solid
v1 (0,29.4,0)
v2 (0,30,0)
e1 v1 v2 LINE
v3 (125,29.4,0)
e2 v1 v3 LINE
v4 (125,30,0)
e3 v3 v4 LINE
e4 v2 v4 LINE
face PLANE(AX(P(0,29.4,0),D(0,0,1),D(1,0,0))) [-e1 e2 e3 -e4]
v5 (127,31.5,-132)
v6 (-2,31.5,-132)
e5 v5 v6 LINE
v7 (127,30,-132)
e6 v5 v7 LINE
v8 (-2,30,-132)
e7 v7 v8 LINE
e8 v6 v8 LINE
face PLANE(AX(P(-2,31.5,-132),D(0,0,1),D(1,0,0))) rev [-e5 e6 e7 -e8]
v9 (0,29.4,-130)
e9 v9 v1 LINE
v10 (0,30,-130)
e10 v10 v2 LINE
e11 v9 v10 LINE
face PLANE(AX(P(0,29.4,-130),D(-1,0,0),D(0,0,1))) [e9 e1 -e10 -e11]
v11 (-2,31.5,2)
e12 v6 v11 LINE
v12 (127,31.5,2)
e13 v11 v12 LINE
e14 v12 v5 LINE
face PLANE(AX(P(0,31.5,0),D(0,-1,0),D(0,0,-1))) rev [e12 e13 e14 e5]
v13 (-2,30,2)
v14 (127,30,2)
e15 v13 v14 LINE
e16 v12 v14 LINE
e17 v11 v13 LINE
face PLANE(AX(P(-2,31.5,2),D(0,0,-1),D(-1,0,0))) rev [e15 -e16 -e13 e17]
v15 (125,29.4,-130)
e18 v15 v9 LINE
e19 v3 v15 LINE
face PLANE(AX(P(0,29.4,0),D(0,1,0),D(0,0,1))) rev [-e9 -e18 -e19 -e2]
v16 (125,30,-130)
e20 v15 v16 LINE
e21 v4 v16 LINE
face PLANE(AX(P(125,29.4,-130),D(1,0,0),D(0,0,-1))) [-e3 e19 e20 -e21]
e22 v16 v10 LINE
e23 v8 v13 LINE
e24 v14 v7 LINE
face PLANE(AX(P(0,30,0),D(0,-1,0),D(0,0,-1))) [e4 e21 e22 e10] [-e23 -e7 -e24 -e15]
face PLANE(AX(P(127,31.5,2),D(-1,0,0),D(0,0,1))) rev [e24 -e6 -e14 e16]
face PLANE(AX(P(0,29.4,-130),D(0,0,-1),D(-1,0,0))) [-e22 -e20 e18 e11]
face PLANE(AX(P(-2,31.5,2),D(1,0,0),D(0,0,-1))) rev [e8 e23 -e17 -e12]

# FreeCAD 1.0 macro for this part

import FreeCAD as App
import Part
import Sketcher

V = App.Vector

doc = App.newDocument("Part")
body = doc.addObject("PartDesign::Body", "Body")

sketch1 = body.newObject("Sketcher::SketchObject", "Sketch")
sketch1.AttachmentSupport = (doc.getObject("XZ_Plane"), [""])
sketch1.MapMode = "FlatFace"
sketch1.AttachmentOffset = App.Placement(V(0, 0, -30), App.Rotation())
sketch1.addGeometry([
    Part.LineSegment(V(0, -130, 0), V(0, 0, 0)),
    Part.LineSegment(V(0, 0, 0), V(125, 0, 0)),
    Part.LineSegment(V(125, 0, 0), V(125, -130, 0)),
    Part.LineSegment(V(125, -130, 0), V(0, -130, 0)),
], False)
sketch1.addConstraint([
    Sketcher.Constraint("Coincident", 0, 2, 1, 1),
    Sketcher.Constraint("Coincident", 1, 2, 2, 1),
    Sketcher.Constraint("Coincident", 2, 2, 3, 1),
    Sketcher.Constraint("Coincident", 3, 2, 0, 1),
    Sketcher.Constraint("Vertical", 0),
    Sketcher.Constraint("Horizontal", 1),
    Sketcher.Constraint("Vertical", 2),
    Sketcher.Constraint("Horizontal", 3),
    Sketcher.Constraint("Coincident", 0, 2, -1, 1),
    Sketcher.Constraint("DistanceX", 1, 1, 1, 2, 125.0),
    Sketcher.Constraint("DistanceY", 0, 1, 0, 2, 130.0),
])
pad1 = body.newObject("PartDesign::Pad", "Pad")
pad1.Profile = sketch1
pad1.Length = 0.6

sketch2 = body.newObject("Sketcher::SketchObject", "Sketch001")
sketch2.AttachmentSupport = (doc.getObject("XZ_Plane"), [""])
sketch2.MapMode = "FlatFace"
sketch2.AttachmentOffset = App.Placement(V(0, 0, -30), App.Rotation())
sketch2.addGeometry([
    Part.LineSegment(V(-2, -132, 0), V(-2, 2, 0)),
    Part.LineSegment(V(-2, 2, 0), V(127, 2, 0)),
    Part.LineSegment(V(127, 2, 0), V(127, -132, 0)),
    Part.LineSegment(V(127, -132, 0), V(-2, -132, 0)),
], False)
sketch2.addConstraint([
    Sketcher.Constraint("Coincident", 0, 2, 1, 1),
    Sketcher.Constraint("Coincident", 1, 2, 2, 1),
    Sketcher.Constraint("Coincident", 2, 2, 3, 1),
    Sketcher.Constraint("Coincident", 3, 2, 0, 1),
    Sketcher.Constraint("Vertical", 0),
    Sketcher.Constraint("Horizontal", 1),
    Sketcher.Constraint("Vertical", 2),
    Sketcher.Constraint("Horizontal", 3),
    Sketcher.Constraint("DistanceX", 1, 1, 1, 2, 129.0),
    Sketcher.Constraint("DistanceY", 0, 1, 0, 2, 134.0),
    Sketcher.Constraint("DistanceX", 0, 2, -1, 1, 2.0),
    Sketcher.Constraint("DistanceY", -1, 1, 0, 2, 2.0),
])
pad2 = body.newObject("PartDesign::Pad", "Pad001")
pad2.Profile = sketch2
pad2.Length = 1.5
pad2.Reversed = True

doc.recompute()
